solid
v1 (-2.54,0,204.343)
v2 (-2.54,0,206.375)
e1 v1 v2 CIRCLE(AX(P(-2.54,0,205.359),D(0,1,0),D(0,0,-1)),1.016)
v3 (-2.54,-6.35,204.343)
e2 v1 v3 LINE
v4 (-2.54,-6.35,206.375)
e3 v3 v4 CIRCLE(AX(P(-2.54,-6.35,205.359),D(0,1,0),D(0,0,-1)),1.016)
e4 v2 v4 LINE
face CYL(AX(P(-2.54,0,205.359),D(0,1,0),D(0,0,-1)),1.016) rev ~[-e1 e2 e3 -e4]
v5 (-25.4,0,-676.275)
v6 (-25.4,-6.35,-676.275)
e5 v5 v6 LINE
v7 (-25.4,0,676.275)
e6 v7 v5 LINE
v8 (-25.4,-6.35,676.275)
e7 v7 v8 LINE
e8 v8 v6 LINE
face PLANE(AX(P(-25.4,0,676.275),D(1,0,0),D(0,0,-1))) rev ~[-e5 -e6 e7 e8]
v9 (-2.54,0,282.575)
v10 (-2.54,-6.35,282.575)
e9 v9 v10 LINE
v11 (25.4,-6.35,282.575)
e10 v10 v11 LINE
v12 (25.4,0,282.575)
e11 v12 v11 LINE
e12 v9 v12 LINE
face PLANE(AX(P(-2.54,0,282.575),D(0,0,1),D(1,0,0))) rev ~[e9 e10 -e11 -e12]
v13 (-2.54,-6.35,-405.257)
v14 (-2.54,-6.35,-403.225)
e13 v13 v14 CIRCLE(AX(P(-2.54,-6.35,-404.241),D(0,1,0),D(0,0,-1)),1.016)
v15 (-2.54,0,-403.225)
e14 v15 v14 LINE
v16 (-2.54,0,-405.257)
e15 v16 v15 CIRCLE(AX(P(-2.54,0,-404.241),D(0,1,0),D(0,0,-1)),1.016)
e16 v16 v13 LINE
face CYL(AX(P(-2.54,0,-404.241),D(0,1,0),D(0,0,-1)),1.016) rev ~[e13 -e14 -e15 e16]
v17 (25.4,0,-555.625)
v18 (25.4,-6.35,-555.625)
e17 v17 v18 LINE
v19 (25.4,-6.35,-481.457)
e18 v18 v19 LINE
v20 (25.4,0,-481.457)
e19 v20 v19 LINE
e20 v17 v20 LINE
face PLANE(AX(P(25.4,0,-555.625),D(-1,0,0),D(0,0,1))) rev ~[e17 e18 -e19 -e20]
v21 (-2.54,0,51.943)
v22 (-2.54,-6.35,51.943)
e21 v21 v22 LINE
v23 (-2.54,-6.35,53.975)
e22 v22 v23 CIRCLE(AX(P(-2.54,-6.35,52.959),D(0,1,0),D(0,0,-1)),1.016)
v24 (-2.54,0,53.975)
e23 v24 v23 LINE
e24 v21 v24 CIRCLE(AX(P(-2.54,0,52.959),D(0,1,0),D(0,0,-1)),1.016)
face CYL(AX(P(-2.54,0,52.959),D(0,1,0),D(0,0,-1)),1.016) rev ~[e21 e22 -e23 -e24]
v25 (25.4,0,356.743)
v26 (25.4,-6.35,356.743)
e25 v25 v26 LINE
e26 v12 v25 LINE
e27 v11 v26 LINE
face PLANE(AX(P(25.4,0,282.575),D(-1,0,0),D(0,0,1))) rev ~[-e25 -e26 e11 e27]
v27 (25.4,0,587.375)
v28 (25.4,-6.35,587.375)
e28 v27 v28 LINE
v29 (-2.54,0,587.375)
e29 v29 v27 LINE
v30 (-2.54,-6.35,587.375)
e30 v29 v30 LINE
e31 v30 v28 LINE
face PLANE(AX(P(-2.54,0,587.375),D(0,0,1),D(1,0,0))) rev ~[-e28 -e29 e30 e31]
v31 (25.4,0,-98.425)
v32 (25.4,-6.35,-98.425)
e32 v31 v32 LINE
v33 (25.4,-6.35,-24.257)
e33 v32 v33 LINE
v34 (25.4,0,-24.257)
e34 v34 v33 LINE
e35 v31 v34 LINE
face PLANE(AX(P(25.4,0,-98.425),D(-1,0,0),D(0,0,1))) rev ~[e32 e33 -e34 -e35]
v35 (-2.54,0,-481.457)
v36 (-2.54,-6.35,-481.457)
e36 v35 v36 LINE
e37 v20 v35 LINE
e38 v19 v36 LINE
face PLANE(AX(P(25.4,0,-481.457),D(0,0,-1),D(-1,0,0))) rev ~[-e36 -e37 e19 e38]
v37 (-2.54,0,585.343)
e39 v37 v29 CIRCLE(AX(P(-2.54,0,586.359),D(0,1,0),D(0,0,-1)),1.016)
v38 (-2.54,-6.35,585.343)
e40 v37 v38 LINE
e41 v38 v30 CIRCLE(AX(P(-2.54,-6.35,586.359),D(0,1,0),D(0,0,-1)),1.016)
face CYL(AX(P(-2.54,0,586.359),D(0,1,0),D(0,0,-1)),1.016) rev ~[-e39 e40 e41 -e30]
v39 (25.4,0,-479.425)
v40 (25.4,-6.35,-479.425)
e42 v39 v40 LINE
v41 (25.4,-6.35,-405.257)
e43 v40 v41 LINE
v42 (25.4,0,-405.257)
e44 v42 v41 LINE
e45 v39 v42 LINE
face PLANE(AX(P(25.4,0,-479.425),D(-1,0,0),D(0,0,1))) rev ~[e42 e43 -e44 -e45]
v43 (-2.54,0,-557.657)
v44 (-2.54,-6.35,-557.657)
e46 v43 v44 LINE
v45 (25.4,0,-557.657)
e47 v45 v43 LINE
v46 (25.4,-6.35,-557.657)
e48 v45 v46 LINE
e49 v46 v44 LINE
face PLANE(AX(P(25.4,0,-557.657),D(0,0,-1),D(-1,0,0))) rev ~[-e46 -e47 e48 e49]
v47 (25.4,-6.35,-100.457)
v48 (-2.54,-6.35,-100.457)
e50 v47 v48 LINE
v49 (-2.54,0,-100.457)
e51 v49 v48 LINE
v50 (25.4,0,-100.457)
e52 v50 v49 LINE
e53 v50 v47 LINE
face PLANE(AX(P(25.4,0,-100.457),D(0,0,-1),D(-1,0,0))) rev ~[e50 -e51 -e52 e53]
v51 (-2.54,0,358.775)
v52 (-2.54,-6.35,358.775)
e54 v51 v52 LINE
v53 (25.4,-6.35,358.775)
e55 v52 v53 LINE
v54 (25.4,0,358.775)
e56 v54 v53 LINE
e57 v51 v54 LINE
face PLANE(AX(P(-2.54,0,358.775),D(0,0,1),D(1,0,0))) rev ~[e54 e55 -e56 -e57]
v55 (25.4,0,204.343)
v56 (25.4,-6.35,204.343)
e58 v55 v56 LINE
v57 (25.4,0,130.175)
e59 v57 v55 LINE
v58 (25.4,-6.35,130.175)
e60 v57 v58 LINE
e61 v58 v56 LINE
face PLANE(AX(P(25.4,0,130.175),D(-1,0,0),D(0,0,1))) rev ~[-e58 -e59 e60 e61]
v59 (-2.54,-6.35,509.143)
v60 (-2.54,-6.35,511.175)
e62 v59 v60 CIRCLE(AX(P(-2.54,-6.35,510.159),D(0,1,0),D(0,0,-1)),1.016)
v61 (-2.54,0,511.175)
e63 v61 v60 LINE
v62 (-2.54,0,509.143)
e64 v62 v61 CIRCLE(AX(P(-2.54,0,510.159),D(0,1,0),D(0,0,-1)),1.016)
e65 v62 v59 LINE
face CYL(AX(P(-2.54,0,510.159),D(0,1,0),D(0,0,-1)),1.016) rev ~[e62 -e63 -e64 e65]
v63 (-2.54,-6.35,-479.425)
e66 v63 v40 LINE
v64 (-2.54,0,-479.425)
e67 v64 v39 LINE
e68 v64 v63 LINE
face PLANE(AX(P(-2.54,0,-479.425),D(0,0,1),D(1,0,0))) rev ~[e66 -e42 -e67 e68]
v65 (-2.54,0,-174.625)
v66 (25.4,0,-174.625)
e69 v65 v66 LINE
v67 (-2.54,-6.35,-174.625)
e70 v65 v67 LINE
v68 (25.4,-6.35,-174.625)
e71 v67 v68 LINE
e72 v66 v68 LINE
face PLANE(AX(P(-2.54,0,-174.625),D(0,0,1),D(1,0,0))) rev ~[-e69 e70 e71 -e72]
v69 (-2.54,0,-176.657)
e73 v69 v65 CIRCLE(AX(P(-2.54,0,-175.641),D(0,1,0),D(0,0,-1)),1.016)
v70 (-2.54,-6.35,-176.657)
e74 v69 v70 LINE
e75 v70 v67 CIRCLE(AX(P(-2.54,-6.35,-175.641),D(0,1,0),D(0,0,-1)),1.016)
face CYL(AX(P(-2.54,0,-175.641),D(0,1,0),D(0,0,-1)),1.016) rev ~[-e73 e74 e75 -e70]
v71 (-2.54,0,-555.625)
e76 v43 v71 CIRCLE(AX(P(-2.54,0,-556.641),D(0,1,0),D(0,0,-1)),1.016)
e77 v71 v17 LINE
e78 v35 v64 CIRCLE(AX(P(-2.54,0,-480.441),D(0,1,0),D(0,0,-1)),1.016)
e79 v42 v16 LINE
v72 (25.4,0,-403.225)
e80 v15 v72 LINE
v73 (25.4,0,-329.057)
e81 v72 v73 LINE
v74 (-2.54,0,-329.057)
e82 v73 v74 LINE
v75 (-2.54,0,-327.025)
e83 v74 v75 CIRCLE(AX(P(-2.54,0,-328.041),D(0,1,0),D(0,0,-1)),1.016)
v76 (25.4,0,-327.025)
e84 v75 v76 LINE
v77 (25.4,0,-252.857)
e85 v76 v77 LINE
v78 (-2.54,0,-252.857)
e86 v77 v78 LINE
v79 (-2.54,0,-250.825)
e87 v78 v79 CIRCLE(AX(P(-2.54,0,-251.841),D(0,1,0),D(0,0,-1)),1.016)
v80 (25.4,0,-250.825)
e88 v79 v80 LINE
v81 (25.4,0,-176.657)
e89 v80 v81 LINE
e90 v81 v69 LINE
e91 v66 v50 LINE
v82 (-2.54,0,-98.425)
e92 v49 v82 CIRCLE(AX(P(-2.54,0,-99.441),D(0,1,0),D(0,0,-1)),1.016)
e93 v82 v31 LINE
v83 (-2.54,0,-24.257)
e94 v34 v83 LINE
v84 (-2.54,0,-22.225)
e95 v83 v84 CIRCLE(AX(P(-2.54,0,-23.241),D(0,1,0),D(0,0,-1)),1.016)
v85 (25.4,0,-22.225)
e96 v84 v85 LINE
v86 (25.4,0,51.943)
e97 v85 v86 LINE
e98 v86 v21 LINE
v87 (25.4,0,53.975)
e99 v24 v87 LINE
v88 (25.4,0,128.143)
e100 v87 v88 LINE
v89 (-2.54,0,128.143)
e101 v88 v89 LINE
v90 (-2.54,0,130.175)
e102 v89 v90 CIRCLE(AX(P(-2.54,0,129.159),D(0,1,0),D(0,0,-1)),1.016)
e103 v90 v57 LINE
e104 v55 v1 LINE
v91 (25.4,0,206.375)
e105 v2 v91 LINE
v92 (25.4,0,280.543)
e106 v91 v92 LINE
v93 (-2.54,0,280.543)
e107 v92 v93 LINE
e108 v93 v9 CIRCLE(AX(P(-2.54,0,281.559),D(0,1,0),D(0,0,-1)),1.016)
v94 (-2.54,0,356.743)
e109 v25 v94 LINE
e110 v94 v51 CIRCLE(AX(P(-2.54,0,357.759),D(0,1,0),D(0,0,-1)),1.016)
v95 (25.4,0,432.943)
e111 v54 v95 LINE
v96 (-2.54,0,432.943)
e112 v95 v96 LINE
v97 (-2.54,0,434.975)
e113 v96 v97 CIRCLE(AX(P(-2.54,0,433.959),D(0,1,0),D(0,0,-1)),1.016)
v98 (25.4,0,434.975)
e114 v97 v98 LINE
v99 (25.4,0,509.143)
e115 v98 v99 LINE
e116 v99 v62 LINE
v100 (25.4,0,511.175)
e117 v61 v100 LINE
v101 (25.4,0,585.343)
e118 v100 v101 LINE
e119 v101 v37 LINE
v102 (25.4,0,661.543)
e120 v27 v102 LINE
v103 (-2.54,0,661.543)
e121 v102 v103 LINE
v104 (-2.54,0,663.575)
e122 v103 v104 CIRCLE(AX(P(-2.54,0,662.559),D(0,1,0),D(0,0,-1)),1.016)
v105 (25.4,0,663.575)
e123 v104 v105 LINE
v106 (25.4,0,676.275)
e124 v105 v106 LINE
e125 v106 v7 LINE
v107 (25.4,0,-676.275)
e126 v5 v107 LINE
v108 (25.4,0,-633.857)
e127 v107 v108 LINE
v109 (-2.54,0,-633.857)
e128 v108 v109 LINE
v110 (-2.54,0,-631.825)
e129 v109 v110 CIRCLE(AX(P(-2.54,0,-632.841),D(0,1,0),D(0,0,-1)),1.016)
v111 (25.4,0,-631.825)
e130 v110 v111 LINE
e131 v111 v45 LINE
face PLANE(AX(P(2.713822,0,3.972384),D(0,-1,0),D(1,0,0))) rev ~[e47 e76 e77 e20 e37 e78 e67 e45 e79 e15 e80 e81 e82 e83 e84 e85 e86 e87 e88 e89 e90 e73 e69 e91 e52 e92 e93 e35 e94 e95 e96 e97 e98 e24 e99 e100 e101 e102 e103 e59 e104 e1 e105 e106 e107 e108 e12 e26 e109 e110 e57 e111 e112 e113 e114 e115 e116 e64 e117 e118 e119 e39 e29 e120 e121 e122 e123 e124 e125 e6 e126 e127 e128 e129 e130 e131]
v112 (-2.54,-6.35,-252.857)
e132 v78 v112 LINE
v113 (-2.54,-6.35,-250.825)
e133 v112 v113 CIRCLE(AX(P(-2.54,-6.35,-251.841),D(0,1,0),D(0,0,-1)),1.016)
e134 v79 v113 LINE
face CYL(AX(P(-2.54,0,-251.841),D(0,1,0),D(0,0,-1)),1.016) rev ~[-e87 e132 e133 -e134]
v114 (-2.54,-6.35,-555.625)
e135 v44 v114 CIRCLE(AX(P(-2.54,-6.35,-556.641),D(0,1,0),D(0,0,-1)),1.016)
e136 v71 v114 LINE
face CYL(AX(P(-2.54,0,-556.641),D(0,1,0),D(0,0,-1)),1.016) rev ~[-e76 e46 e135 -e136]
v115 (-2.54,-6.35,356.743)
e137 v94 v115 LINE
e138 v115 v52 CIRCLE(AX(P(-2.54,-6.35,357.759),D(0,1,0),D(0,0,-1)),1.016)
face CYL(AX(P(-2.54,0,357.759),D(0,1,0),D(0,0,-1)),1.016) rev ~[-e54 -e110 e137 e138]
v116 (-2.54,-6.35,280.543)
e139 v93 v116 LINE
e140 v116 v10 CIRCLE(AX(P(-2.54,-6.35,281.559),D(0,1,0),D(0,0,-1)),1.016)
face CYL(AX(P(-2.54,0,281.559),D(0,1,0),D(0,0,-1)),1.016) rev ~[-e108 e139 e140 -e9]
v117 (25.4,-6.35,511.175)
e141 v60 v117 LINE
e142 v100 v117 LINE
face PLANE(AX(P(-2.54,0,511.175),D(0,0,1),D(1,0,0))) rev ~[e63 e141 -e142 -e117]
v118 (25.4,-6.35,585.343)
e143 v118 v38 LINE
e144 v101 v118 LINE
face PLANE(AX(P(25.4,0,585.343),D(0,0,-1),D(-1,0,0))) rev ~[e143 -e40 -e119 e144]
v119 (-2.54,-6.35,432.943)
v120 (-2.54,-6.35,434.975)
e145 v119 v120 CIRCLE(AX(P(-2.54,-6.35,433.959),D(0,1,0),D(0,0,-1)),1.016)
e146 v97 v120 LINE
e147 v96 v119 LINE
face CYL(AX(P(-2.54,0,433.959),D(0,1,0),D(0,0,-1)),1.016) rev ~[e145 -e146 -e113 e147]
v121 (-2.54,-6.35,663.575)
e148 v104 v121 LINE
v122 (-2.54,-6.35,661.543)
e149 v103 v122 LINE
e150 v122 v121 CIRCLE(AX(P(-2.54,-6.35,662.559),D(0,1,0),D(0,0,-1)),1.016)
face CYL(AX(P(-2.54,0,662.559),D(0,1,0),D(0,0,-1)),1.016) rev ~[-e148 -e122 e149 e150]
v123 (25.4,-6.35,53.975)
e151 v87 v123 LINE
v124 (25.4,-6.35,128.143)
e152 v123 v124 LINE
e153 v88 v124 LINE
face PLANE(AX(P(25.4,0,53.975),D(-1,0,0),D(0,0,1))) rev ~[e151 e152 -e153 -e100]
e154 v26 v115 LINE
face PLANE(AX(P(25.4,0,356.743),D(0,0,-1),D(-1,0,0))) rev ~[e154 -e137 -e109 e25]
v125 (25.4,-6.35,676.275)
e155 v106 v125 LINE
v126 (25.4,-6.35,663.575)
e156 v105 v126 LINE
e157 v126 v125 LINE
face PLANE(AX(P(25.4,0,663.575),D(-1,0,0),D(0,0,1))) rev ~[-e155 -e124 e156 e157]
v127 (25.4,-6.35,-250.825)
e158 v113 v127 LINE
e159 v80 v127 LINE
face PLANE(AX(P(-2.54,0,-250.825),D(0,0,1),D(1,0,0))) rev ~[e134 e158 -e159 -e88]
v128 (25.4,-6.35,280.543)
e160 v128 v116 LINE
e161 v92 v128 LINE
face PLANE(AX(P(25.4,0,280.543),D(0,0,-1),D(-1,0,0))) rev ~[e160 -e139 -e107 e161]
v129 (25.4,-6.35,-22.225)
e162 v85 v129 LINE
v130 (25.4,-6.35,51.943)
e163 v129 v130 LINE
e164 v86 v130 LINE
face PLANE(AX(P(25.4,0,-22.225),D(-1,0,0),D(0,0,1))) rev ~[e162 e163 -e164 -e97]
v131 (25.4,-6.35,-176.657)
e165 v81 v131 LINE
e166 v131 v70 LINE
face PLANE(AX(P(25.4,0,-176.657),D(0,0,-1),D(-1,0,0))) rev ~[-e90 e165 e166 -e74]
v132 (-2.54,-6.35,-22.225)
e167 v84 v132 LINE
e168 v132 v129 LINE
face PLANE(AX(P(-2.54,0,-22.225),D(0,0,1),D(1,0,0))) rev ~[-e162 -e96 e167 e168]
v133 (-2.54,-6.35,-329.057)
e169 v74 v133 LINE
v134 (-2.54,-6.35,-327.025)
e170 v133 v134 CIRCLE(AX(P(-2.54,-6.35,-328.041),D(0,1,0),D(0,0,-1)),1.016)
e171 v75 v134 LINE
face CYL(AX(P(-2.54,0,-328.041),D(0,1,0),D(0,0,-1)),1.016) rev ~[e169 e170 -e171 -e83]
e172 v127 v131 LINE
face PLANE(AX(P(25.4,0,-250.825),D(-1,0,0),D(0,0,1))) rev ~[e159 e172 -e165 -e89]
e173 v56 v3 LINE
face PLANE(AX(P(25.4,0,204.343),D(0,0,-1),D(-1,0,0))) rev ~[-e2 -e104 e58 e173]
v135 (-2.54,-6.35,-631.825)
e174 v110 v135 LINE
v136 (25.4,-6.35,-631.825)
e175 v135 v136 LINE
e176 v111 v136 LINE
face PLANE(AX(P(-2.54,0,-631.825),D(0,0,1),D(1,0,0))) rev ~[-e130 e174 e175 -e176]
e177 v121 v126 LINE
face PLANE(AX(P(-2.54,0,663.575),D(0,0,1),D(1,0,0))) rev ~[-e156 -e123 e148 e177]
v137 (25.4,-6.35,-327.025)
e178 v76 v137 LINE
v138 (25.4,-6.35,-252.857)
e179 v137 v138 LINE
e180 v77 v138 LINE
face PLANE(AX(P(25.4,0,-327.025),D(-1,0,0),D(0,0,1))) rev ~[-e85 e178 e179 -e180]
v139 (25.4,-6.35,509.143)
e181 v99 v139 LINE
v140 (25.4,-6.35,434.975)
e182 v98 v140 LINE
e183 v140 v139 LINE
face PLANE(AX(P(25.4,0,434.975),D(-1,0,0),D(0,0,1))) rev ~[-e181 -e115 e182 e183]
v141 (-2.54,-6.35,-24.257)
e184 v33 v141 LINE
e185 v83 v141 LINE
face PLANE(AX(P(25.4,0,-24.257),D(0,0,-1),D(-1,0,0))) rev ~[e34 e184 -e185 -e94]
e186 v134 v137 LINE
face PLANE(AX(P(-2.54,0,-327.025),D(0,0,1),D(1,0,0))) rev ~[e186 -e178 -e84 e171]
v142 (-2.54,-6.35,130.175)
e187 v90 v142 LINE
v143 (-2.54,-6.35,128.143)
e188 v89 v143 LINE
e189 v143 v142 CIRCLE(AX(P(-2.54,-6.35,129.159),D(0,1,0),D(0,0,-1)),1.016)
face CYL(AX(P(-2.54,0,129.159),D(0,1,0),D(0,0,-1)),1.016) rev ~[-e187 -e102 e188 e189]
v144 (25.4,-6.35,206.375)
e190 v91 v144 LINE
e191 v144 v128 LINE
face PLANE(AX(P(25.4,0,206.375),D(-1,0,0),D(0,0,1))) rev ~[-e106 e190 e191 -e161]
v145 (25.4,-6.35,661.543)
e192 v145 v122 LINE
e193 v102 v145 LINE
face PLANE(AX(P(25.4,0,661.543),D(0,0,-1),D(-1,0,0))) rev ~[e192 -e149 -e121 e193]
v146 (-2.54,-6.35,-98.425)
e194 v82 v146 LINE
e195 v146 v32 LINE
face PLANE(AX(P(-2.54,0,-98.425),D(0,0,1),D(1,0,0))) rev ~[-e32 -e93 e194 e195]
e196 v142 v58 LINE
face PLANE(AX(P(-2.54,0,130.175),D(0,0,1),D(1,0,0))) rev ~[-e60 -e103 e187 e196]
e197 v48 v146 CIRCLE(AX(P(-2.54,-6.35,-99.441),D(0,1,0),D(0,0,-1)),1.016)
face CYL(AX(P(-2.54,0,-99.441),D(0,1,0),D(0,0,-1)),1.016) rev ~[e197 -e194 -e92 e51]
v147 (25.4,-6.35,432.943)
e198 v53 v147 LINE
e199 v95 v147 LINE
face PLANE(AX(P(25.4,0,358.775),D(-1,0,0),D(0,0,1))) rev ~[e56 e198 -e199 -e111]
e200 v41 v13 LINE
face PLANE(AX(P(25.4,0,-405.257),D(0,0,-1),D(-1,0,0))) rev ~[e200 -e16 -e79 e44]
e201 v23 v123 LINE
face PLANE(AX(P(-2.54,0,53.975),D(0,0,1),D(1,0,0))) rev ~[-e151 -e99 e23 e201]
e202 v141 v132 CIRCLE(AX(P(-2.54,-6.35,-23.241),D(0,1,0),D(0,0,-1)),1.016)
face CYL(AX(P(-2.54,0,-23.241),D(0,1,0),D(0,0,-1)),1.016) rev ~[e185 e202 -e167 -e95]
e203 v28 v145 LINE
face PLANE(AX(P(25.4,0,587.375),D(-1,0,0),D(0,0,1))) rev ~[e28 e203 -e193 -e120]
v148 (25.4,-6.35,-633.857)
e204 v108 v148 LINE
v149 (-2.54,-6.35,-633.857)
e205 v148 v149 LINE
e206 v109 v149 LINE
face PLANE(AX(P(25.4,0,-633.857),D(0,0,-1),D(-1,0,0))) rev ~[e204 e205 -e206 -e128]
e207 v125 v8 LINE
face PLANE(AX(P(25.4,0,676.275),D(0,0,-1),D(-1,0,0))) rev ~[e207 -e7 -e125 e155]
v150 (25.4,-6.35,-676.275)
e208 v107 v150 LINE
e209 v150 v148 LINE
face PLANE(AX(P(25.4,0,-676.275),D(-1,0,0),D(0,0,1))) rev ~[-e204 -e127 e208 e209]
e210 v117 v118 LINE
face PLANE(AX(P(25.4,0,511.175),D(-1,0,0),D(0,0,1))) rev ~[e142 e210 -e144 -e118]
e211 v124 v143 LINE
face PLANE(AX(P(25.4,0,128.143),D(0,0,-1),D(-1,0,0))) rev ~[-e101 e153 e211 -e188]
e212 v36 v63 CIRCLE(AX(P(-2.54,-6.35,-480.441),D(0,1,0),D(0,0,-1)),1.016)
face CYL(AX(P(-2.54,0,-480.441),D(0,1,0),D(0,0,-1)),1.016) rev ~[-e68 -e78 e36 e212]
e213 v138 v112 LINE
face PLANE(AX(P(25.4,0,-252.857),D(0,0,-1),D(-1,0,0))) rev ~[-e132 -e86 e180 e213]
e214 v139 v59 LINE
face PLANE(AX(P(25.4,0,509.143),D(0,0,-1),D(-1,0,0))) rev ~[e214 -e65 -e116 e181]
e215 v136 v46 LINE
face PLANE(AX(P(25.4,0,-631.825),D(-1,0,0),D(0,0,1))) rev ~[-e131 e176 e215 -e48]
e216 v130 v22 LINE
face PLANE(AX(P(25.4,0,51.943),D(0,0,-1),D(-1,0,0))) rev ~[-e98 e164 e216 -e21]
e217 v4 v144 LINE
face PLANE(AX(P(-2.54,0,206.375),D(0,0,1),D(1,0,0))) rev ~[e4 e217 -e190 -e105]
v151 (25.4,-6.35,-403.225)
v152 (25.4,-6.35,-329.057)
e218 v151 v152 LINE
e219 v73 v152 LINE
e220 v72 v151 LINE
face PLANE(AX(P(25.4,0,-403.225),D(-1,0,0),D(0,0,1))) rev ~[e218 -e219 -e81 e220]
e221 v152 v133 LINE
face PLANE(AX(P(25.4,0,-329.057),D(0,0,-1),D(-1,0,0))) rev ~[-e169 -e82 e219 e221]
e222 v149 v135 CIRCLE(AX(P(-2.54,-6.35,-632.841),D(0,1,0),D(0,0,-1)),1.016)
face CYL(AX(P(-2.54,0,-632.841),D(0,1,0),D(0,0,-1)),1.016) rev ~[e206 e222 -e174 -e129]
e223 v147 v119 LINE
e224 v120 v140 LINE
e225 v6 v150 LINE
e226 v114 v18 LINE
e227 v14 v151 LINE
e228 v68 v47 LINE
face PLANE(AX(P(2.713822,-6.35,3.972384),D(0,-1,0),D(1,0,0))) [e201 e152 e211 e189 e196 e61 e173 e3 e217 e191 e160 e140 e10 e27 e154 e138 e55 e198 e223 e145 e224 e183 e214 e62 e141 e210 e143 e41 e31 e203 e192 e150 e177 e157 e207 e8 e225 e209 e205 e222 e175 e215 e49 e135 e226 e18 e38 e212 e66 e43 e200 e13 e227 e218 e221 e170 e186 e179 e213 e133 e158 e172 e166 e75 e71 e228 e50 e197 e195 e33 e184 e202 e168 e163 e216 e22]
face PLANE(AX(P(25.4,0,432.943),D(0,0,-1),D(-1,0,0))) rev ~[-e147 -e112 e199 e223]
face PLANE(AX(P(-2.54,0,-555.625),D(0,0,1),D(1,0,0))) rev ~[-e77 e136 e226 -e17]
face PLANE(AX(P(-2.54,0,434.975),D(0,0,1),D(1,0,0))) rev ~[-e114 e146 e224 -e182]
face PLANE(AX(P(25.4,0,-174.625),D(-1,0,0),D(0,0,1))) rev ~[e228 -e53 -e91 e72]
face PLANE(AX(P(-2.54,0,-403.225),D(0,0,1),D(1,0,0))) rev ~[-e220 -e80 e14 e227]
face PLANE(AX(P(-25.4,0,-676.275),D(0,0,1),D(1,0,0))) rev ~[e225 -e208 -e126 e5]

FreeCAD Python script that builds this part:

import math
import FreeCAD as App
import Part
import Sketcher
Q = App.Units.Quantity

doc = App.newDocument("Part")
body = doc.addObject("PartDesign::Body", "Body")

# Sketch on XZ plane
sketch1 = body.newObject("Sketcher::SketchObject", "Sketch")
sketch1.AttachmentSupport = (doc.getObject("XZ_Plane"), [""])
sketch1.MapMode = "FlatFace"
sketch1.addGeometry(Part.LineSegment(App.Vector(-25.4, -676.3, 0), App.Vector(25.4, -676.3, 0)), False)
sketch1.addGeometry(Part.LineSegment(App.Vector(25.4, -676.3, 0), App.Vector(25.4, -633.9, 0)), False)
sketch1.addGeometry(Part.LineSegment(App.Vector(25.4, -633.9, 0), App.Vector(-2.5, -633.9, 0)), False)
sketch1.addGeometry(Part.ArcOfCircle(Part.Circle(App.Vector(-2.5, -632.8, 0), App.Vector(0, 0, 1), 1), math.radians(90), math.radians(270)), False)
sketch1.addGeometry(Part.LineSegment(App.Vector(-2.5, -631.8, 0), App.Vector(25.4, -631.8, 0)), False)
sketch1.addGeometry(Part.LineSegment(App.Vector(25.4, -631.8, 0), App.Vector(25.4, -557.7, 0)), False)
sketch1.addGeometry(Part.LineSegment(App.Vector(25.4, -557.7, 0), App.Vector(-2.5, -557.7, 0)), False)
sketch1.addGeometry(Part.ArcOfCircle(Part.Circle(App.Vector(-2.5, -556.6, 0), App.Vector(0, 0, 1), 1), math.radians(90), math.radians(270)), False)
sketch1.addGeometry(Part.LineSegment(App.Vector(-2.5, -555.6, 0), App.Vector(25.4, -555.6, 0)), False)
sketch1.addGeometry(Part.LineSegment(App.Vector(25.4, -555.6, 0), App.Vector(25.4, -481.5, 0)), False)
sketch1.addGeometry(Part.LineSegment(App.Vector(25.4, -481.5, 0), App.Vector(-2.5, -481.5, 0)), False)
sketch1.addGeometry(Part.ArcOfCircle(Part.Circle(App.Vector(-2.5, -480.4, 0), App.Vector(0, 0, 1), 1), math.radians(90), math.radians(270)), False)
sketch1.addGeometry(Part.LineSegment(App.Vector(-2.5, -479.4, 0), App.Vector(25.4, -479.4, 0)), False)
sketch1.addGeometry(Part.LineSegment(App.Vector(25.4, -479.4, 0), App.Vector(25.4, -405.3, 0)), False)
sketch1.addGeometry(Part.LineSegment(App.Vector(25.4, -405.3, 0), App.Vector(-2.5, -405.3, 0)), False)
sketch1.addGeometry(Part.ArcOfCircle(Part.Circle(App.Vector(-2.5, -404.2, 0), App.Vector(0, 0, 1), 1), math.radians(90), math.radians(270)), False)
sketch1.addGeometry(Part.LineSegment(App.Vector(-2.5, -403.2, 0), App.Vector(25.4, -403.2, 0)), False)
sketch1.addGeometry(Part.LineSegment(App.Vector(25.4, -403.2, 0), App.Vector(25.4, -329.1, 0)), False)
sketch1.addGeometry(Part.LineSegment(App.Vector(25.4, -329.1, 0), App.Vector(-2.5, -329.1, 0)), False)
sketch1.addGeometry(Part.ArcOfCircle(Part.Circle(App.Vector(-2.5, -328, 0), App.Vector(0, 0, 1), 1), math.radians(90), math.radians(270)), False)
sketch1.addGeometry(Part.LineSegment(App.Vector(-2.5, -327, 0), App.Vector(25.4, -327, 0)), False)
sketch1.addGeometry(Part.LineSegment(App.Vector(25.4, -327, 0), App.Vector(25.4, -252.9, 0)), False)
sketch1.addGeometry(Part.LineSegment(App.Vector(25.4, -252.9, 0), App.Vector(-2.5, -252.9, 0)), False)
sketch1.addGeometry(Part.ArcOfCircle(Part.Circle(App.Vector(-2.5, -251.8, 0), App.Vector(0, 0, 1), 1), math.radians(90), math.radians(270)), False)
sketch1.addGeometry(Part.LineSegment(App.Vector(-2.5, -250.8, 0), App.Vector(25.4, -250.8, 0)), False)
sketch1.addGeometry(Part.LineSegment(App.Vector(25.4, -250.8, 0), App.Vector(25.4, -176.7, 0)), False)
sketch1.addGeometry(Part.LineSegment(App.Vector(25.4, -176.7, 0), App.Vector(-2.5, -176.7, 0)), False)
sketch1.addGeometry(Part.ArcOfCircle(Part.Circle(App.Vector(-2.5, -175.6, 0), App.Vector(0, 0, 1), 1), math.radians(90), math.radians(270)), False)
sketch1.addGeometry(Part.LineSegment(App.Vector(-2.5, -174.6, 0), App.Vector(25.4, -174.6, 0)), False)
sketch1.addGeometry(Part.LineSegment(App.Vector(25.4, -174.6, 0), App.Vector(25.4, -100.5, 0)), False)
sketch1.addGeometry(Part.LineSegment(App.Vector(25.4, -100.5, 0), App.Vector(-2.5, -100.5, 0)), False)
sketch1.addGeometry(Part.ArcOfCircle(Part.Circle(App.Vector(-2.5, -99.4, 0), App.Vector(0, 0, 1), 1), math.radians(90), math.radians(270)), False)
sketch1.addGeometry(Part.LineSegment(App.Vector(-2.5, -98.4, 0), App.Vector(25.4, -98.4, 0)), False)
sketch1.addGeometry(Part.LineSegment(App.Vector(25.4, -98.4, 0), App.Vector(25.4, -24.3, 0)), False)
sketch1.addGeometry(Part.LineSegment(App.Vector(25.4, -24.3, 0), App.Vector(-2.5, -24.3, 0)), False)
sketch1.addGeometry(Part.ArcOfCircle(Part.Circle(App.Vector(-2.5, -23.2, 0), App.Vector(0, 0, 1), 1), math.radians(90), math.radians(270)), False)
sketch1.addGeometry(Part.LineSegment(App.Vector(-2.5, -22.2, 0), App.Vector(25.4, -22.2, 0)), False)
sketch1.addGeometry(Part.LineSegment(App.Vector(25.4, -22.2, 0), App.Vector(25.4, 51.9, 0)), False)
sketch1.addGeometry(Part.LineSegment(App.Vector(25.4, 51.9, 0), App.Vector(-2.5, 51.9, 0)), False)
sketch1.addGeometry(Part.ArcOfCircle(Part.Circle(App.Vector(-2.5, 53, 0), App.Vector(0, 0, 1), 1), math.radians(90), math.radians(270)), False)
sketch1.addGeometry(Part.LineSegment(App.Vector(-2.5, 54, 0), App.Vector(25.4, 54, 0)), False)
sketch1.addGeometry(Part.LineSegment(App.Vector(25.4, 54, 0), App.Vector(25.4, 128.1, 0)), False)
sketch1.addGeometry(Part.LineSegment(App.Vector(25.4, 128.1, 0), App.Vector(-2.5, 128.1, 0)), False)
sketch1.addGeometry(Part.ArcOfCircle(Part.Circle(App.Vector(-2.5, 129.2, 0), App.Vector(0, 0, 1), 1), math.radians(90), math.radians(270)), False)
sketch1.addGeometry(Part.LineSegment(App.Vector(-2.5, 130.2, 0), App.Vector(25.4, 130.2, 0)), False)
sketch1.addGeometry(Part.LineSegment(App.Vector(25.4, 130.2, 0), App.Vector(25.4, 204.3, 0)), False)
sketch1.addGeometry(Part.LineSegment(App.Vector(25.4, 204.3, 0), App.Vector(-2.5, 204.3, 0)), False)
sketch1.addGeometry(Part.ArcOfCircle(Part.Circle(App.Vector(-2.5, 205.4, 0), App.Vector(0, 0, 1), 1), math.radians(90), math.radians(270)), False)
sketch1.addGeometry(Part.LineSegment(App.Vector(-2.5, 206.4, 0), App.Vector(25.4, 206.4, 0)), False)
sketch1.addGeometry(Part.LineSegment(App.Vector(25.4, 206.4, 0), App.Vector(25.4, 280.5, 0)), False)
sketch1.addGeometry(Part.LineSegment(App.Vector(25.4, 280.5, 0), App.Vector(-2.5, 280.5, 0)), False)
sketch1.addGeometry(Part.ArcOfCircle(Part.Circle(App.Vector(-2.5, 281.6, 0), App.Vector(0, 0, 1), 1), math.radians(90), math.radians(270)), False)
sketch1.addGeometry(Part.LineSegment(App.Vector(-2.5, 282.6, 0), App.Vector(25.4, 282.6, 0)), False)
sketch1.addGeometry(Part.LineSegment(App.Vector(25.4, 282.6, 0), App.Vector(25.4, 356.7, 0)), False)
sketch1.addGeometry(Part.LineSegment(App.Vector(25.4, 356.7, 0), App.Vector(-2.5, 356.7, 0)), False)
sketch1.addGeometry(Part.ArcOfCircle(Part.Circle(App.Vector(-2.5, 357.8, 0), App.Vector(0, 0, 1), 1), math.radians(90), math.radians(270)), False)
sketch1.addGeometry(Part.LineSegment(App.Vector(-2.5, 358.8, 0), App.Vector(25.4, 358.8, 0)), False)
sketch1.addGeometry(Part.LineSegment(App.Vector(25.4, 358.8, 0), App.Vector(25.4, 432.9, 0)), False)
sketch1.addGeometry(Part.LineSegment(App.Vector(25.4, 432.9, 0), App.Vector(-2.5, 432.9, 0)), False)
sketch1.addGeometry(Part.ArcOfCircle(Part.Circle(App.Vector(-2.5, 434, 0), App.Vector(0, 0, 1), 1), math.radians(90), math.radians(270)), False)
sketch1.addGeometry(Part.LineSegment(App.Vector(-2.5, 435, 0), App.Vector(25.4, 435, 0)), False)
sketch1.addGeometry(Part.LineSegment(App.Vector(25.4, 435, 0), App.Vector(25.4, 509.1, 0)), False)
sketch1.addGeometry(Part.LineSegment(App.Vector(25.4, 509.1, 0), App.Vector(-2.5, 509.1, 0)), False)
sketch1.addGeometry(Part.ArcOfCircle(Part.Circle(App.Vector(-2.5, 510.2, 0), App.Vector(0, 0, 1), 1), math.radians(90), math.radians(270)), False)
sketch1.addGeometry(Part.LineSegment(App.Vector(-2.5, 511.2, 0), App.Vector(25.4, 511.2, 0)), False)
sketch1.addGeometry(Part.LineSegment(App.Vector(25.4, 511.2, 0), App.Vector(25.4, 585.3, 0)), False)
sketch1.addGeometry(Part.LineSegment(App.Vector(25.4, 585.3, 0), App.Vector(-2.5, 585.3, 0)), False)
sketch1.addGeometry(Part.ArcOfCircle(Part.Circle(App.Vector(-2.5, 586.4, 0), App.Vector(0, 0, 1), 1), math.radians(90), math.radians(270)), False)
sketch1.addGeometry(Part.LineSegment(App.Vector(-2.5, 587.4, 0), App.Vector(25.4, 587.4, 0)), False)
sketch1.addGeometry(Part.LineSegment(App.Vector(25.4, 587.4, 0), App.Vector(25.4, 661.5, 0)), False)
sketch1.addGeometry(Part.LineSegment(App.Vector(25.4, 661.5, 0), App.Vector(-2.5, 661.5, 0)), False)
sketch1.addGeometry(Part.ArcOfCircle(Part.Circle(App.Vector(-2.5, 662.6, 0), App.Vector(0, 0, 1), 1), math.radians(90), math.radians(270)), False)
sketch1.addGeometry(Part.LineSegment(App.Vector(-2.5, 663.6, 0), App.Vector(25.4, 663.6, 0)), False)
sketch1.addGeometry(Part.LineSegment(App.Vector(25.4, 663.6, 0), App.Vector(25.4, 676.3, 0)), False)
sketch1.addGeometry(Part.LineSegment(App.Vector(25.4, 676.3, 0), App.Vector(-25.4, 676.3, 0)), False)
sketch1.addGeometry(Part.LineSegment(App.Vector(-25.4, 676.3, 0), App.Vector(-25.4, -676.3, 0)), False)
sketch1.addConstraint(Sketcher.Constraint("Coincident", 0, 2, 1, 1))
sketch1.addConstraint(Sketcher.Constraint("Coincident", 1, 2, 2, 1))
sketch1.addConstraint(Sketcher.Constraint("Tangent", 2, 2, 3, 2))
sketch1.addConstraint(Sketcher.Constraint("Tangent", 3, 1, 4, 1))
sketch1.addConstraint(Sketcher.Constraint("Coincident", 4, 2, 5, 1))
sketch1.addConstraint(Sketcher.Constraint("Coincident", 5, 2, 6, 1))
sketch1.addConstraint(Sketcher.Constraint("Tangent", 6, 2, 7, 2))
sketch1.addConstraint(Sketcher.Constraint("Tangent", 7, 1, 8, 1))
sketch1.addConstraint(Sketcher.Constraint("Coincident", 8, 2, 9, 1))
sketch1.addConstraint(Sketcher.Constraint("Coincident", 9, 2, 10, 1))
sketch1.addConstraint(Sketcher.Constraint("Tangent", 10, 2, 11, 2))
sketch1.addConstraint(Sketcher.Constraint("Tangent", 11, 1, 12, 1))
sketch1.addConstraint(Sketcher.Constraint("Coincident", 12, 2, 13, 1))
sketch1.addConstraint(Sketcher.Constraint("Coincident", 13, 2, 14, 1))
sketch1.addConstraint(Sketcher.Constraint("Tangent", 14, 2, 15, 2))
sketch1.addConstraint(Sketcher.Constraint("Tangent", 15, 1, 16, 1))
sketch1.addConstraint(Sketcher.Constraint("Coincident", 16, 2, 17, 1))
sketch1.addConstraint(Sketcher.Constraint("Coincident", 17, 2, 18, 1))
sketch1.addConstraint(Sketcher.Constraint("Tangent", 18, 2, 19, 2))
sketch1.addConstraint(Sketcher.Constraint("Tangent", 19, 1, 20, 1))
sketch1.addConstraint(Sketcher.Constraint("Coincident", 20, 2, 21, 1))
sketch1.addConstraint(Sketcher.Constraint("Coincident", 21, 2, 22, 1))
sketch1.addConstraint(Sketcher.Constraint("Tangent", 22, 2, 23, 2))
sketch1.addConstraint(Sketcher.Constraint("Tangent", 23, 1, 24, 1))
sketch1.addConstraint(Sketcher.Constraint("Coincident", 24, 2, 25, 1))
sketch1.addConstraint(Sketcher.Constraint("Coincident", 25, 2, 26, 1))
sketch1.addConstraint(Sketcher.Constraint("Tangent", 26, 2, 27, 2))
sketch1.addConstraint(Sketcher.Constraint("Tangent", 27, 1, 28, 1))
sketch1.addConstraint(Sketcher.Constraint("Coincident", 28, 2, 29, 1))
sketch1.addConstraint(Sketcher.Constraint("Coincident", 29, 2, 30, 1))
sketch1.addConstraint(Sketcher.Constraint("Tangent", 30, 2, 31, 2))
sketch1.addConstraint(Sketcher.Constraint("Tangent", 31, 1, 32, 1))
sketch1.addConstraint(Sketcher.Constraint("Coincident", 32, 2, 33, 1))
sketch1.addConstraint(Sketcher.Constraint("Coincident", 33, 2, 34, 1))
sketch1.addConstraint(Sketcher.Constraint("Tangent", 34, 2, 35, 2))
sketch1.addConstraint(Sketcher.Constraint("Tangent", 35, 1, 36, 1))
sketch1.addConstraint(Sketcher.Constraint("Coincident", 36, 2, 37, 1))
sketch1.addConstraint(Sketcher.Constraint("Coincident", 37, 2, 38, 1))
sketch1.addConstraint(Sketcher.Constraint("Tangent", 38, 2, 39, 2))
sketch1.addConstraint(Sketcher.Constraint("Tangent", 39, 1, 40, 1))
sketch1.addConstraint(Sketcher.Constraint("Coincident", 40, 2, 41, 1))
sketch1.addConstraint(Sketcher.Constraint("Coincident", 41, 2, 42, 1))
sketch1.addConstraint(Sketcher.Constraint("Tangent", 42, 2, 43, 2))
sketch1.addConstraint(Sketcher.Constraint("Tangent", 43, 1, 44, 1))
sketch1.addConstraint(Sketcher.Constraint("Coincident", 44, 2, 45, 1))
sketch1.addConstraint(Sketcher.Constraint("Coincident", 45, 2, 46, 1))
sketch1.addConstraint(Sketcher.Constraint("Tangent", 46, 2, 47, 2))
sketch1.addConstraint(Sketcher.Constraint("Tangent", 47, 1, 48, 1))
sketch1.addConstraint(Sketcher.Constraint("Coincident", 48, 2, 49, 1))
sketch1.addConstraint(Sketcher.Constraint("Coincident", 49, 2, 50, 1))
sketch1.addConstraint(Sketcher.Constraint("Tangent", 50, 2, 51, 2))
sketch1.addConstraint(Sketcher.Constraint("Tangent", 51, 1, 52, 1))
sketch1.addConstraint(Sketcher.Constraint("Coincident", 52, 2, 53, 1))
sketch1.addConstraint(Sketcher.Constraint("Coincident", 53, 2, 54, 1))
sketch1.addConstraint(Sketcher.Constraint("Tangent", 54, 2, 55, 2))
sketch1.addConstraint(Sketcher.Constraint("Tangent", 55, 1, 56, 1))
sketch1.addConstraint(Sketcher.Constraint("Coincident", 56, 2, 57, 1))
sketch1.addConstraint(Sketcher.Constraint("Coincident", 57, 2, 58, 1))
sketch1.addConstraint(Sketcher.Constraint("Tangent", 58, 2, 59, 2))
sketch1.addConstraint(Sketcher.Constraint("Tangent", 59, 1, 60, 1))
sketch1.addConstraint(Sketcher.Constraint("Coincident", 60, 2, 61, 1))
sketch1.addConstraint(Sketcher.Constraint("Coincident", 61, 2, 62, 1))
sketch1.addConstraint(Sketcher.Constraint("Tangent", 62, 2, 63, 2))
sketch1.addConstraint(Sketcher.Constraint("Tangent", 63, 1, 64, 1))
sketch1.addConstraint(Sketcher.Constraint("Coincident", 64, 2, 65, 1))
sketch1.addConstraint(Sketcher.Constraint("Coincident", 65, 2, 66, 1))
sketch1.addConstraint(Sketcher.Constraint("Tangent", 66, 2, 67, 2))
sketch1.addConstraint(Sketcher.Constraint("Tangent", 67, 1, 68, 1))
sketch1.addConstraint(Sketcher.Constraint("Coincident", 68, 2, 69, 1))
sketch1.addConstraint(Sketcher.Constraint("Coincident", 69, 2, 70, 1))
sketch1.addConstraint(Sketcher.Constraint("Tangent", 70, 2, 71, 2))
sketch1.addConstraint(Sketcher.Constraint("Tangent", 71, 1, 72, 1))
sketch1.addConstraint(Sketcher.Constraint("Coincident", 72, 2, 73, 1))
sketch1.addConstraint(Sketcher.Constraint("Coincident", 73, 2, 74, 1))
sketch1.addConstraint(Sketcher.Constraint("Coincident", 74, 2, 75, 1))
sketch1.addConstraint(Sketcher.Constraint("Coincident", 75, 2, 0, 1))
sketch1.addConstraint(Sketcher.Constraint("Horizontal", 0))
sketch1.addConstraint(Sketcher.Constraint("Vertical", 1))
sketch1.addConstraint(Sketcher.Constraint("Horizontal", 2))
sketch1.addConstraint(Sketcher.Constraint("Horizontal", 4))
sketch1.addConstraint(Sketcher.Constraint("Vertical", 5))
sketch1.addConstraint(Sketcher.Constraint("Horizontal", 6))
sketch1.addConstraint(Sketcher.Constraint("Horizontal", 8))
sketch1.addConstraint(Sketcher.Constraint("Vertical", 9))
sketch1.addConstraint(Sketcher.Constraint("Horizontal", 10))
sketch1.addConstraint(Sketcher.Constraint("Horizontal", 12))
sketch1.addConstraint(Sketcher.Constraint("Vertical", 13))
sketch1.addConstraint(Sketcher.Constraint("Horizontal", 14))
sketch1.addConstraint(Sketcher.Constraint("Horizontal", 16))
sketch1.addConstraint(Sketcher.Constraint("Vertical", 17))
sketch1.addConstraint(Sketcher.Constraint("Horizontal", 18))
sketch1.addConstraint(Sketcher.Constraint("Horizontal", 20))
sketch1.addConstraint(Sketcher.Constraint("Vertical", 21))
sketch1.addConstraint(Sketcher.Constraint("Horizontal", 22))
sketch1.addConstraint(Sketcher.Constraint("Horizontal", 24))
sketch1.addConstraint(Sketcher.Constraint("Vertical", 25))
sketch1.addConstraint(Sketcher.Constraint("Horizontal", 26))
sketch1.addConstraint(Sketcher.Constraint("Horizontal", 28))
sketch1.addConstraint(Sketcher.Constraint("Vertical", 29))
sketch1.addConstraint(Sketcher.Constraint("Horizontal", 30))
sketch1.addConstraint(Sketcher.Constraint("Horizontal", 32))
sketch1.addConstraint(Sketcher.Constraint("Vertical", 33))
sketch1.addConstraint(Sketcher.Constraint("Horizontal", 34))
sketch1.addConstraint(Sketcher.Constraint("Horizontal", 36))
sketch1.addConstraint(Sketcher.Constraint("Vertical", 37))
sketch1.addConstraint(Sketcher.Constraint("Horizontal", 38))
sketch1.addConstraint(Sketcher.Constraint("Horizontal", 40))
sketch1.addConstraint(Sketcher.Constraint("Vertical", 41))
sketch1.addConstraint(Sketcher.Constraint("Horizontal", 42))
sketch1.addConstraint(Sketcher.Constraint("Horizontal", 44))
sketch1.addConstraint(Sketcher.Constraint("Vertical", 45))
sketch1.addConstraint(Sketcher.Constraint("Horizontal", 46))
sketch1.addConstraint(Sketcher.Constraint("Horizontal", 48))
sketch1.addConstraint(Sketcher.Constraint("Vertical", 49))
sketch1.addConstraint(Sketcher.Constraint("Horizontal", 50))
sketch1.addConstraint(Sketcher.Constraint("Horizontal", 52))
sketch1.addConstraint(Sketcher.Constraint("Vertical", 53))
sketch1.addConstraint(Sketcher.Constraint("Horizontal", 54))
sketch1.addConstraint(Sketcher.Constraint("Horizontal", 56))
sketch1.addConstraint(Sketcher.Constraint("Vertical", 57))
sketch1.addConstraint(Sketcher.Constraint("Horizontal", 58))
sketch1.addConstraint(Sketcher.Constraint("Horizontal", 60))
sketch1.addConstraint(Sketcher.Constraint("Vertical", 61))
sketch1.addConstraint(Sketcher.Constraint("Horizontal", 62))
sketch1.addConstraint(Sketcher.Constraint("Horizontal", 64))
sketch1.addConstraint(Sketcher.Constraint("Vertical", 65))
sketch1.addConstraint(Sketcher.Constraint("Horizontal", 66))
sketch1.addConstraint(Sketcher.Constraint("Horizontal", 68))
sketch1.addConstraint(Sketcher.Constraint("Vertical", 69))
sketch1.addConstraint(Sketcher.Constraint("Horizontal", 70))
sketch1.addConstraint(Sketcher.Constraint("Horizontal", 72))
sketch1.addConstraint(Sketcher.Constraint("Vertical", 73))
sketch1.addConstraint(Sketcher.Constraint("Horizontal", 74))
sketch1.addConstraint(Sketcher.Constraint("Vertical", 75))
sketch1.addConstraint(Sketcher.Constraint("Equal", 3, 7))
sketch1.addConstraint(Sketcher.Constraint("Equal", 7, 11))
sketch1.addConstraint(Sketcher.Constraint("Equal", 11, 15))
sketch1.addConstraint(Sketcher.Constraint("Equal", 15, 19))
sketch1.addConstraint(Sketcher.Constraint("Equal", 19, 23))
sketch1.addConstraint(Sketcher.Constraint("Equal", 23, 27))
sketch1.addConstraint(Sketcher.Constraint("Equal", 27, 31))
sketch1.addConstraint(Sketcher.Constraint("Equal", 31, 35))
sketch1.addConstraint(Sketcher.Constraint("Equal", 35, 39))
sketch1.addConstraint(Sketcher.Constraint("Equal", 39, 43))
sketch1.addConstraint(Sketcher.Constraint("Equal", 43, 47))
sketch1.addConstraint(Sketcher.Constraint("Equal", 47, 51))
sketch1.addConstraint(Sketcher.Constraint("Equal", 51, 55))
sketch1.addConstraint(Sketcher.Constraint("Equal", 55, 59))
sketch1.addConstraint(Sketcher.Constraint("Equal", 59, 63))
sketch1.addConstraint(Sketcher.Constraint("Equal", 63, 67))
sketch1.addConstraint(Sketcher.Constraint("Equal", 67, 71))
sketch1.addConstraint(Sketcher.Constraint("Symmetric", 0, 2, 74, 2, -1, 1))
sketch1.addConstraint(Sketcher.Constraint("Vertical", 3, 3, 7, 3))
sketch1.addConstraint(Sketcher.Constraint("Vertical", 7, 3, 11, 3))
sketch1.addConstraint(Sketcher.Constraint("Vertical", 11, 3, 15, 3))
sketch1.addConstraint(Sketcher.Constraint("Vertical", 15, 3, 19, 3))
sketch1.addConstraint(Sketcher.Constraint("Vertical", 19, 3, 23, 3))
sketch1.addConstraint(Sketcher.Constraint("Vertical", 23, 3, 27, 3))
sketch1.addConstraint(Sketcher.Constraint("Vertical", 27, 3, 31, 3))
sketch1.addConstraint(Sketcher.Constraint("Vertical", 31, 3, 35, 3))
sketch1.addConstraint(Sketcher.Constraint("Vertical", 35, 3, 39, 3))
sketch1.addConstraint(Sketcher.Constraint("Vertical", 39, 3, 43, 3))
sketch1.addConstraint(Sketcher.Constraint("Vertical", 43, 3, 47, 3))
sketch1.addConstraint(Sketcher.Constraint("Vertical", 47, 3, 51, 3))
sketch1.addConstraint(Sketcher.Constraint("Vertical", 51, 3, 55, 3))
sketch1.addConstraint(Sketcher.Constraint("Vertical", 55, 3, 59, 3))
sketch1.addConstraint(Sketcher.Constraint("Vertical", 59, 3, 63, 3))
sketch1.addConstraint(Sketcher.Constraint("Vertical", 63, 3, 67, 3))
sketch1.addConstraint(Sketcher.Constraint("Vertical", 67, 3, 71, 3))
sketch1.addConstraint(Sketcher.Constraint("Vertical", 1, 2, 4, 2))
sketch1.addConstraint(Sketcher.Constraint("Vertical", 5, 2, 8, 2))
sketch1.addConstraint(Sketcher.Constraint("Vertical", 9, 2, 12, 2))
sketch1.addConstraint(Sketcher.Constraint("Vertical", 13, 2, 16, 2))
sketch1.addConstraint(Sketcher.Constraint("Vertical", 17, 2, 20, 2))
sketch1.addConstraint(Sketcher.Constraint("Vertical", 21, 2, 24, 2))
sketch1.addConstraint(Sketcher.Constraint("Vertical", 25, 2, 28, 2))
sketch1.addConstraint(Sketcher.Constraint("Vertical", 29, 2, 32, 2))
sketch1.addConstraint(Sketcher.Constraint("Vertical", 33, 2, 36, 2))
sketch1.addConstraint(Sketcher.Constraint("Vertical", 37, 2, 40, 2))
sketch1.addConstraint(Sketcher.Constraint("Vertical", 41, 2, 44, 2))
sketch1.addConstraint(Sketcher.Constraint("Vertical", 45, 2, 48, 2))
sketch1.addConstraint(Sketcher.Constraint("Vertical", 49, 2, 52, 2))
sketch1.addConstraint(Sketcher.Constraint("Vertical", 53, 2, 56, 2))
sketch1.addConstraint(Sketcher.Constraint("Vertical", 57, 2, 60, 2))
sketch1.addConstraint(Sketcher.Constraint("Vertical", 61, 2, 64, 2))
sketch1.addConstraint(Sketcher.Constraint("Vertical", 65, 2, 68, 2))
sketch1.addConstraint(Sketcher.Constraint("Vertical", 69, 2, 72, 2))
sketch1.addConstraint(Sketcher.Constraint("Equal", 5, 9))
sketch1.addConstraint(Sketcher.Constraint("Equal", 9, 13))
sketch1.addConstraint(Sketcher.Constraint("Equal", 13, 17))
sketch1.addConstraint(Sketcher.Constraint("Equal", 17, 21))
sketch1.addConstraint(Sketcher.Constraint("Equal", 21, 25))
sketch1.addConstraint(Sketcher.Constraint("Equal", 25, 29))
sketch1.addConstraint(Sketcher.Constraint("Equal", 29, 33))
sketch1.addConstraint(Sketcher.Constraint("Equal", 33, 37))
sketch1.addConstraint(Sketcher.Constraint("Equal", 37, 41))
sketch1.addConstraint(Sketcher.Constraint("Equal", 41, 45))
sketch1.addConstraint(Sketcher.Constraint("Equal", 45, 49))
sketch1.addConstraint(Sketcher.Constraint("Equal", 49, 53))
sketch1.addConstraint(Sketcher.Constraint("Equal", 53, 57))
sketch1.addConstraint(Sketcher.Constraint("Equal", 57, 61))
sketch1.addConstraint(Sketcher.Constraint("Equal", 61, 65))
sketch1.addConstraint(Sketcher.Constraint("Equal", 65, 69))
sketch1.addConstraint(Sketcher.Constraint("DistanceX", 0, 1, 0, 2, Q("2 in")))
sketch1.addConstraint(Sketcher.Constraint("Radius", 3, Q("0.04 in")))
sketch1.addConstraint(Sketcher.Constraint("DistanceX", 2, 2, 2, 1, Q("1.1 in")))
sketch1.addConstraint(Sketcher.Constraint("DistanceY", 73, 1, 73, 2, Q("0.5 in")))
sketch1.addConstraint(Sketcher.Constraint("DistanceY", 1, 1, 1, 2, Q("1.67 in")))
sketch1.addConstraint(Sketcher.Constraint("DistanceY", 5, 1, 5, 2, Q("2.92 in")))
pad1 = body.newObject("PartDesign::Pad", "Pad")
pad1.Profile = sketch1
pad1.Length = Q("0.25 in")

doc.recompute()
